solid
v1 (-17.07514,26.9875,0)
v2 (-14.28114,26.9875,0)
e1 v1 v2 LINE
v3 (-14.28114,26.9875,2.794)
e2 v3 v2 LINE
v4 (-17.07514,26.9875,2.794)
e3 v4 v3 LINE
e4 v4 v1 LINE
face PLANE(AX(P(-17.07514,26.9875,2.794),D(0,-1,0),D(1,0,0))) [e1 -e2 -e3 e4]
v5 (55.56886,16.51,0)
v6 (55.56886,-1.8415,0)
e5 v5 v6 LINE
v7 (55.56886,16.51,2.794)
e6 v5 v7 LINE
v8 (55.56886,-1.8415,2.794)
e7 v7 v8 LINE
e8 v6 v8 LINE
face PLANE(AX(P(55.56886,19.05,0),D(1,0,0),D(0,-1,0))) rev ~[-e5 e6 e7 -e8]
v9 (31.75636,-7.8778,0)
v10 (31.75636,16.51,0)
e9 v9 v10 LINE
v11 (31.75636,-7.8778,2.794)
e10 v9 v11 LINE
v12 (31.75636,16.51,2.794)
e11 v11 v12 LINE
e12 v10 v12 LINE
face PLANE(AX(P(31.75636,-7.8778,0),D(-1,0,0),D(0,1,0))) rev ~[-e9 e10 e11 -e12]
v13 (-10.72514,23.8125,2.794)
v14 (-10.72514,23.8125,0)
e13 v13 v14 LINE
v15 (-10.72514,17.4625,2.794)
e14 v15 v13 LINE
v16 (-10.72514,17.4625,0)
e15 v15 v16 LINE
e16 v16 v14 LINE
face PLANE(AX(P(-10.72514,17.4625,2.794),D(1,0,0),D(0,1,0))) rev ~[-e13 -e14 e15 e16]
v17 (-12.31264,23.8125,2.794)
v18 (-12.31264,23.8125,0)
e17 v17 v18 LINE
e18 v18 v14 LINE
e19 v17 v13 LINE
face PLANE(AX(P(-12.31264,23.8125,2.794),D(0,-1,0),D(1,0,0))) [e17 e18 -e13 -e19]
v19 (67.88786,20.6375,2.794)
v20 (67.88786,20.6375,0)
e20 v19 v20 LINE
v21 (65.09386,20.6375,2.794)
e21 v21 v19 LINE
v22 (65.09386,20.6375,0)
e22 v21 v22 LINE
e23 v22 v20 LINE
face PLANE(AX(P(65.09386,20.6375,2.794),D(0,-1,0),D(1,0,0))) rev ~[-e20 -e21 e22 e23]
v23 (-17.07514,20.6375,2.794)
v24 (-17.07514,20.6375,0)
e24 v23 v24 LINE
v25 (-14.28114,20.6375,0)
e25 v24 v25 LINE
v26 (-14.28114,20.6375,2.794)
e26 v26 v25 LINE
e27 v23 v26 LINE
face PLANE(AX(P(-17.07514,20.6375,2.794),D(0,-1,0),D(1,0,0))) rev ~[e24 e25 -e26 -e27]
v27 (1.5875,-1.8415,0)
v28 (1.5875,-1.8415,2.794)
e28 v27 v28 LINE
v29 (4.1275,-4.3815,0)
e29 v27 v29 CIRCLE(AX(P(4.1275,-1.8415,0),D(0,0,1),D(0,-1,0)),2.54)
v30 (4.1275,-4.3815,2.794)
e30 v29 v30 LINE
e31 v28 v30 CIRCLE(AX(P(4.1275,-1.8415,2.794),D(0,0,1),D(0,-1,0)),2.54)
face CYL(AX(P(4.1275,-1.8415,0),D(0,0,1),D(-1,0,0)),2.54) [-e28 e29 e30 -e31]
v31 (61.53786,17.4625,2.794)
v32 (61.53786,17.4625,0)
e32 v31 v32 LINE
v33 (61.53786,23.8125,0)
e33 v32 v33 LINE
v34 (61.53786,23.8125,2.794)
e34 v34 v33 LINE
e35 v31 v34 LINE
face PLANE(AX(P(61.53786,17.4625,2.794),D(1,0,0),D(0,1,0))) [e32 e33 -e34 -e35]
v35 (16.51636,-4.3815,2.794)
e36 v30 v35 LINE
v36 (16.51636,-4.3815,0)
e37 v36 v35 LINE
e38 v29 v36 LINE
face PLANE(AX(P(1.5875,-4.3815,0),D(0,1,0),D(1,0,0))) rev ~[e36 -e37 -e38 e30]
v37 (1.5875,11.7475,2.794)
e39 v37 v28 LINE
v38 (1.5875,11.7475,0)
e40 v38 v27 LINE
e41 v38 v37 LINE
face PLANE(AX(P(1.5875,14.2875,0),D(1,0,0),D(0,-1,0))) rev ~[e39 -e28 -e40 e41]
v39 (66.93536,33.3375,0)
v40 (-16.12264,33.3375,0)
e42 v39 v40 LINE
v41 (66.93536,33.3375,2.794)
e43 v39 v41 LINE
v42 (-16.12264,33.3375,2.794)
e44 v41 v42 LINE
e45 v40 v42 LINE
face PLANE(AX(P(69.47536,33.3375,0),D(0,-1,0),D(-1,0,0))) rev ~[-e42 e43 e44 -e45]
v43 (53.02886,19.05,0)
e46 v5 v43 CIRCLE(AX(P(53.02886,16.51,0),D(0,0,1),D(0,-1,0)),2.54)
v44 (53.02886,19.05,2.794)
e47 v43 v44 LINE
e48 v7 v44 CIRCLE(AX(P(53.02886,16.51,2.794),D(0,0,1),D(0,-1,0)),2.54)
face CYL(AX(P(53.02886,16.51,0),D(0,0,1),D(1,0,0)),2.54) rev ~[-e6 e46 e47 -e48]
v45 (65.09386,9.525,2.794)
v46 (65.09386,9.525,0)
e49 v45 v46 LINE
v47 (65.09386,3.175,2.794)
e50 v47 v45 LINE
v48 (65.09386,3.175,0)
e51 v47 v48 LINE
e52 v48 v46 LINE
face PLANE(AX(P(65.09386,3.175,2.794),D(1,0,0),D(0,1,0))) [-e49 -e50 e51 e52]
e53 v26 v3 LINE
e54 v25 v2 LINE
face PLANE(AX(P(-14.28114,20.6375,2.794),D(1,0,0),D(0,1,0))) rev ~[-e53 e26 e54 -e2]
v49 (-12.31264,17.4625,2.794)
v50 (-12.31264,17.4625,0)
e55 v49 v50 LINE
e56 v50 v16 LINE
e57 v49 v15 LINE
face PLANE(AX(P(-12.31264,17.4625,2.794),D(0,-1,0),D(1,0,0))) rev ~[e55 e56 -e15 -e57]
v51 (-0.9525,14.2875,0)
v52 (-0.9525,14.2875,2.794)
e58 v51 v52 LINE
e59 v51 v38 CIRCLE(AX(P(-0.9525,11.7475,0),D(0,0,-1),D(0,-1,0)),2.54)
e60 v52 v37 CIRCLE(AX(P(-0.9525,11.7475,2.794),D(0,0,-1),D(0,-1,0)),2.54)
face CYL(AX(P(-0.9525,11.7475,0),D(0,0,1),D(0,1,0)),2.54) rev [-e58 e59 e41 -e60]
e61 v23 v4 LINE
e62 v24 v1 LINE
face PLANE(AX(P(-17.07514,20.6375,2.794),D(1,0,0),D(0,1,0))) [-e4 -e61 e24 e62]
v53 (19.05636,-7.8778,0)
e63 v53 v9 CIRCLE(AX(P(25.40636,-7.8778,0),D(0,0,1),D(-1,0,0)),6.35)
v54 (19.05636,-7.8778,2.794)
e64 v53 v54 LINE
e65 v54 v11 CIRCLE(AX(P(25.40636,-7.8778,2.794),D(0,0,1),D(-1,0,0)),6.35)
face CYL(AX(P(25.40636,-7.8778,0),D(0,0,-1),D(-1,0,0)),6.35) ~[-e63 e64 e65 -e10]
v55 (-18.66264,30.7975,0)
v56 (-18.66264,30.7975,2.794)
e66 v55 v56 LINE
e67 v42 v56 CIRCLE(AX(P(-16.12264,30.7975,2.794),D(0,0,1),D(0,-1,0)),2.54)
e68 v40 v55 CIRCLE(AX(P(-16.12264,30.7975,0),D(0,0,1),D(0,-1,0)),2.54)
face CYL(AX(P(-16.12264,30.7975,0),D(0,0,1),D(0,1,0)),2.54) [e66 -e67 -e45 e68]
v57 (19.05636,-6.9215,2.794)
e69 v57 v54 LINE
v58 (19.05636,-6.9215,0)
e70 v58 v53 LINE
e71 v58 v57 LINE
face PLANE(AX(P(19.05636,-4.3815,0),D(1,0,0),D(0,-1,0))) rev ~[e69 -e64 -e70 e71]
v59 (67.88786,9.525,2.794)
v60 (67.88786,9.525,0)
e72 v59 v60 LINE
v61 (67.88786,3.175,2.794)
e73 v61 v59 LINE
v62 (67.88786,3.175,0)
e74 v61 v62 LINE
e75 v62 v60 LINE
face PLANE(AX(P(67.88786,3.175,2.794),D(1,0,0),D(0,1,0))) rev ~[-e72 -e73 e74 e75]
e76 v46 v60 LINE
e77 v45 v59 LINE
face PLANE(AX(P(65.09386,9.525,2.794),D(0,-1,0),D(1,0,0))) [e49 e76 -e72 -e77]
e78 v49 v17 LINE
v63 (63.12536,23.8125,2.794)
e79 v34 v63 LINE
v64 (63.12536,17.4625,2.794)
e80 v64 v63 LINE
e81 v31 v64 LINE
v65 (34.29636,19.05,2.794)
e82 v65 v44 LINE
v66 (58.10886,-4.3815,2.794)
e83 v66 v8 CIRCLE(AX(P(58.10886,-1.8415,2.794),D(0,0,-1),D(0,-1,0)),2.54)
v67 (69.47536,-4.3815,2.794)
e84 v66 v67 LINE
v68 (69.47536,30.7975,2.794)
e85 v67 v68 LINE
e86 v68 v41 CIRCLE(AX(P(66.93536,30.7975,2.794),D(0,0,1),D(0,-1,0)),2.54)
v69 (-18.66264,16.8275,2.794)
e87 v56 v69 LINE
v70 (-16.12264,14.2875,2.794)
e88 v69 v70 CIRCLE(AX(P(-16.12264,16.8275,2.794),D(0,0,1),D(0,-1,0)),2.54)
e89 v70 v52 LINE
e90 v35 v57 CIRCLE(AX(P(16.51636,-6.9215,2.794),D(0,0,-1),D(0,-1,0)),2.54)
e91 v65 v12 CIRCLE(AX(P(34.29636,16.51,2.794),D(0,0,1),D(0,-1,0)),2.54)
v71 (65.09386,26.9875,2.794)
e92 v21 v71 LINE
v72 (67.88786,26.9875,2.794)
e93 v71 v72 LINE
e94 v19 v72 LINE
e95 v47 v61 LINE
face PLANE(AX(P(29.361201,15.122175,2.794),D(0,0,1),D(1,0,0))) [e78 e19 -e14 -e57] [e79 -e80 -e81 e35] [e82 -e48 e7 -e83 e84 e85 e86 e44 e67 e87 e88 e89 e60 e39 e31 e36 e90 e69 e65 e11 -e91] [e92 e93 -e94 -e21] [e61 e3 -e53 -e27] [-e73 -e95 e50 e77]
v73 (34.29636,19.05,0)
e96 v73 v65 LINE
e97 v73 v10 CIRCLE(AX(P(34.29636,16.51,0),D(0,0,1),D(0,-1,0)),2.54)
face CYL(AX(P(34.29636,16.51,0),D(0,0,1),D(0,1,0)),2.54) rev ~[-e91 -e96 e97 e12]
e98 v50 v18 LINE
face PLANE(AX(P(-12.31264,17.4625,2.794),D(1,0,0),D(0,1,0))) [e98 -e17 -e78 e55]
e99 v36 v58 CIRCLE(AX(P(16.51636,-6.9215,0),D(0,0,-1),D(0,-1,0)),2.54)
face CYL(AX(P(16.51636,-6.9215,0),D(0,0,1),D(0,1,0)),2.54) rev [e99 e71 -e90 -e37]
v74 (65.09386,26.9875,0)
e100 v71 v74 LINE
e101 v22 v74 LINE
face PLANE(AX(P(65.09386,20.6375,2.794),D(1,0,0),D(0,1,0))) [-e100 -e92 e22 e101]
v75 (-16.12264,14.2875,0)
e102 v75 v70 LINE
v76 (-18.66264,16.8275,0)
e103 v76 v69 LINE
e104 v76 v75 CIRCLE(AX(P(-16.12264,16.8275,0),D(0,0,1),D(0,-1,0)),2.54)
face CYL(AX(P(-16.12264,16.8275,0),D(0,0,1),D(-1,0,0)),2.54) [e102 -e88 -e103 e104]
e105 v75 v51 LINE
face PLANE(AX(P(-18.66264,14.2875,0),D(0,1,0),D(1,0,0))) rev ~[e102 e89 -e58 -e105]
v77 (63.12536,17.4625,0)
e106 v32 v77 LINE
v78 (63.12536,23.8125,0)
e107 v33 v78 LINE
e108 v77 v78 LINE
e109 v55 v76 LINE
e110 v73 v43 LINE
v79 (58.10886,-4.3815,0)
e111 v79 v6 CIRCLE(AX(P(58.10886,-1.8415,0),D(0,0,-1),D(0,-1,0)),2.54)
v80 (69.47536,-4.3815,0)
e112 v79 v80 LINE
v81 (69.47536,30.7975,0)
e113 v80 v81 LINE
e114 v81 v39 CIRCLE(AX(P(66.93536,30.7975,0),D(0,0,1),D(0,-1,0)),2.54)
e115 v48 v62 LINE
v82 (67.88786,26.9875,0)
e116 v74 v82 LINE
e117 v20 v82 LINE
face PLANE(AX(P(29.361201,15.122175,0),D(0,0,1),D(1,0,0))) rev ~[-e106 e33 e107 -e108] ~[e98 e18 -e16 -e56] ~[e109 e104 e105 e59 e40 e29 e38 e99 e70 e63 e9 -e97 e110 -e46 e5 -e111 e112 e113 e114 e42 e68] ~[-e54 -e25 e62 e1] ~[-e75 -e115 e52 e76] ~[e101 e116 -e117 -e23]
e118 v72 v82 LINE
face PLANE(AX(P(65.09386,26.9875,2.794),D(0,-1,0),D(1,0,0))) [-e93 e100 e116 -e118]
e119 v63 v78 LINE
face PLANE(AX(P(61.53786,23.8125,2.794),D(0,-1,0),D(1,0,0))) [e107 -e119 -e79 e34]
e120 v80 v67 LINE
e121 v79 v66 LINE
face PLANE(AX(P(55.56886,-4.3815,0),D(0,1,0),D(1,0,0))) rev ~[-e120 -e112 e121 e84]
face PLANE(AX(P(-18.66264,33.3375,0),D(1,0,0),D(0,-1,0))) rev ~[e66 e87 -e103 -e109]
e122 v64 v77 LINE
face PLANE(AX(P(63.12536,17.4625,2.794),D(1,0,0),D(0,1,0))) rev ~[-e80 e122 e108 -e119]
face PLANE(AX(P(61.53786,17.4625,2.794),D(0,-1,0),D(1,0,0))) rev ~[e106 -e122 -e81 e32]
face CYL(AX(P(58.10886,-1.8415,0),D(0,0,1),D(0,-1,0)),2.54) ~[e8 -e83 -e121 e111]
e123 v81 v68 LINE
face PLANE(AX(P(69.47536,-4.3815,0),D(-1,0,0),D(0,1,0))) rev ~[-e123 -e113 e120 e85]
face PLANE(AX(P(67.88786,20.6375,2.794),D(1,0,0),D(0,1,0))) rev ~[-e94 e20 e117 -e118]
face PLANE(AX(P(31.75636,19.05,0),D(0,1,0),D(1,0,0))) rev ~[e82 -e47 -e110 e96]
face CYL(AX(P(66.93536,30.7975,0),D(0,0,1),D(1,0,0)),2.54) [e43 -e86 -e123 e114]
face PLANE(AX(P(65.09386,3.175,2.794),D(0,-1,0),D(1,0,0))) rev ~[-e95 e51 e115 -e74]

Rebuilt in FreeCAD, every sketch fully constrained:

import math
import FreeCAD as App
import Part
import Sketcher
Q = App.Units.Quantity


def edges_at(feature, points):
    """Names of the edges that pass closest to the given points."""
    edges = feature.Shape.Edges
    near = lambda p: min(range(len(edges)), key=lambda i: edges[i].distToShape(Part.Vertex(*p))[0])
    return sorted({f"Edge{near(p) + 1}" for p in points})

doc = App.newDocument("Part")
body = doc.addObject("PartDesign::Body", "Body")

sketch1 = body.newObject("Sketcher::SketchObject", "Sketch")
sketch1.AttachmentSupport = (doc.getObject("XY_Plane"), [""])
sketch1.MapMode = "FlatFace"
sketch1.addGeometry([
    Part.LineSegment(App.Vector(69.47536, -4.3815, 0), App.Vector(69.47536, 33.3375, 0)),
    Part.LineSegment(App.Vector(69.47536, 33.3375, 0), App.Vector(-18.66264, 33.3375, 0)),
    Part.LineSegment(App.Vector(-18.66264, 33.3375, 0), App.Vector(-18.66264, 14.2875, 0)),
    Part.LineSegment(App.Vector(-18.66264, 14.2875, 0), App.Vector(1.5875, 14.2875, 0)),
    Part.LineSegment(App.Vector(1.5875, 14.2875, 0), App.Vector(1.5875, -4.3815, 0)),
    Part.LineSegment(App.Vector(1.5875, -4.3815, 0), App.Vector(19.05636, -4.3815, 0)),
    Part.LineSegment(App.Vector(19.05636, -4.3815, 0), App.Vector(19.05636, -7.8778, 0)),
    Part.ArcOfCircle(Part.Circle(App.Vector(25.40636, -7.8778, 0), App.Vector(0, 0, 1), 6.35), math.radians(180), math.radians(360)),
    Part.LineSegment(App.Vector(31.75636, -7.8778, 0), App.Vector(31.75636, 19.05, 0)),
    Part.LineSegment(App.Vector(31.75636, 19.05, 0), App.Vector(55.56886, 19.05, 0)),
    Part.LineSegment(App.Vector(55.56886, 19.05, 0), App.Vector(55.56886, -4.3815, 0)),
    Part.LineSegment(App.Vector(55.56886, -4.3815, 0), App.Vector(69.47536, -4.3815, 0)),
], False)
sketch1.addConstraint([
    Sketcher.Constraint("Coincident", 0, 2, 1, 1),
    Sketcher.Constraint("Coincident", 1, 2, 2, 1),
    Sketcher.Constraint("Coincident", 2, 2, 3, 1),
    Sketcher.Constraint("Coincident", 3, 2, 4, 1),
    Sketcher.Constraint("Coincident", 4, 2, 5, 1),
    Sketcher.Constraint("Coincident", 5, 2, 6, 1),
    Sketcher.Constraint("Tangent", 6, 2, 7, 1),
    Sketcher.Constraint("Tangent", 7, 2, 8, 1),
    Sketcher.Constraint("Coincident", 8, 2, 9, 1),
    Sketcher.Constraint("Coincident", 9, 2, 10, 1),
    Sketcher.Constraint("Coincident", 10, 2, 11, 1),
    Sketcher.Constraint("Coincident", 11, 2, 0, 1),
    Sketcher.Constraint("Vertical", 0),
    Sketcher.Constraint("Horizontal", 1),
    Sketcher.Constraint("Vertical", 2),
    Sketcher.Constraint("Horizontal", 3),
    Sketcher.Constraint("Vertical", 4),
    Sketcher.Constraint("Horizontal", 5),
    Sketcher.Constraint("Vertical", 6),
    Sketcher.Constraint("Vertical", 8),
    Sketcher.Constraint("Horizontal", 9),
    Sketcher.Constraint("Vertical", 10),
    Sketcher.Constraint("Horizontal", 11),
    Sketcher.Constraint("Horizontal", 5, 2, 10, 2),
    Sketcher.Constraint("Radius", 7, Q("0.25 in")),
    Sketcher.Constraint("DistanceX", 1, 2, 1, 1, Q("3.47 in")),
    Sketcher.Constraint("DistanceY", 2, 2, 2, 1, Q("0.75 in")),
    Sketcher.Constraint("DistanceX", 9, 1, 9, 2, Q("0.9375 in")),
    Sketcher.Constraint("DistanceY", 0, 1, 0, 2, Q("1.485 in")),
    Sketcher.Constraint("DistanceY", -1, 1, 8, 2, Q("0.75 in")),
    Sketcher.Constraint("DistanceX", 11, 1, 11, 2, Q("0.5475 in")),
    Sketcher.Constraint("DistanceY", 10, 2, 10, 1, Q("0.9225 in")),
    Sketcher.Constraint("DistanceX", -1, 1, 3, 2, Q("0.0625 in")),
    Sketcher.Constraint("DistanceY", 6, 2, 6, 1, Q("3.4963 mm")),
    Sketcher.Constraint("DistanceX", 3, 1, 3, 2, Q("20.25014 mm")),
])
pad1 = body.newObject("PartDesign::Pad", "Pad")
pad1.Profile = sketch1
pad1.Length = Q("0.11 in")

sketch2 = body.newObject("Sketcher::SketchObject", "Sketch001")
sketch2.AttachmentSupport = (doc.getObject("XY_Plane"), [""])
sketch2.MapMode = "FlatFace"
sketch2.AttachmentOffset = App.Placement(App.Vector(0, 0, 0.11 * 25.4), App.Rotation())
sketch2.addGeometry([
    Part.LineSegment(App.Vector(-17.07514, 26.9875, 0), App.Vector(-17.07514, 20.6375, 0)),
    Part.LineSegment(App.Vector(-17.07514, 20.6375, 0), App.Vector(-14.28114, 20.6375, 0)),
    Part.LineSegment(App.Vector(-14.28114, 20.6375, 0), App.Vector(-14.28114, 26.9875, 0)),
    Part.LineSegment(App.Vector(-14.28114, 26.9875, 0), App.Vector(-17.07514, 26.9875, 0)),
    Part.LineSegment(App.Vector(65.09386, 26.9875, 0), App.Vector(65.09386, 20.6375, 0)),
    Part.LineSegment(App.Vector(65.09386, 20.6375, 0), App.Vector(67.88786, 20.6375, 0)),
    Part.LineSegment(App.Vector(67.88786, 20.6375, 0), App.Vector(67.88786, 26.9875, 0)),
    Part.LineSegment(App.Vector(67.88786, 26.9875, 0), App.Vector(65.09386, 26.9875, 0)),
    Part.LineSegment(App.Vector(65.09386, 9.525, 0), App.Vector(65.09386, 3.175, 0)),
    Part.LineSegment(App.Vector(65.09386, 3.175, 0), App.Vector(67.88786, 3.175, 0)),
    Part.LineSegment(App.Vector(67.88786, 3.175, 0), App.Vector(67.88786, 9.525, 0)),
    Part.LineSegment(App.Vector(67.88786, 9.525, 0), App.Vector(65.09386, 9.525, 0)),
    Part.LineSegment(App.Vector(-12.31264, 23.8125, 0), App.Vector(-12.31264, 17.4625, 0)),
    Part.LineSegment(App.Vector(-12.31264, 17.4625, 0), App.Vector(-10.72514, 17.4625, 0)),
    Part.LineSegment(App.Vector(-10.72514, 17.4625, 0), App.Vector(-10.72514, 23.8125, 0)),
    Part.LineSegment(App.Vector(-10.72514, 23.8125, 0), App.Vector(-12.31264, 23.8125, 0)),
    Part.LineSegment(App.Vector(61.53786, 23.8125, 0), App.Vector(61.53786, 17.4625, 0)),
    Part.LineSegment(App.Vector(61.53786, 17.4625, 0), App.Vector(63.12536, 17.4625, 0)),
    Part.LineSegment(App.Vector(63.12536, 17.4625, 0), App.Vector(63.12536, 23.8125, 0)),
    Part.LineSegment(App.Vector(63.12536, 23.8125, 0), App.Vector(61.53786, 23.8125, 0)),
], False)
sketch2.addConstraint([
    Sketcher.Constraint("Coincident", 0, 2, 1, 1),
    Sketcher.Constraint("Coincident", 1, 2, 2, 1),
    Sketcher.Constraint("Coincident", 2, 2, 3, 1),
    Sketcher.Constraint("Coincident", 3, 2, 0, 1),
    Sketcher.Constraint("Coincident", 4, 2, 5, 1),
    Sketcher.Constraint("Coincident", 5, 2, 6, 1),
    Sketcher.Constraint("Coincident", 6, 2, 7, 1),
    Sketcher.Constraint("Coincident", 7, 2, 4, 1),
    Sketcher.Constraint("Coincident", 8, 2, 9, 1),
    Sketcher.Constraint("Coincident", 9, 2, 10, 1),
    Sketcher.Constraint("Coincident", 10, 2, 11, 1),
    Sketcher.Constraint("Coincident", 11, 2, 8, 1),
    Sketcher.Constraint("Coincident", 12, 2, 13, 1),
    Sketcher.Constraint("Coincident", 13, 2, 14, 1),
    Sketcher.Constraint("Coincident", 14, 2, 15, 1),
    Sketcher.Constraint("Coincident", 15, 2, 12, 1),
    Sketcher.Constraint("Coincident", 16, 2, 17, 1),
    Sketcher.Constraint("Coincident", 17, 2, 18, 1),
    Sketcher.Constraint("Coincident", 18, 2, 19, 1),
    Sketcher.Constraint("Coincident", 19, 2, 16, 1),
    Sketcher.Constraint("Vertical", 0),
    Sketcher.Constraint("Horizontal", 1),
    Sketcher.Constraint("Vertical", 2),
    Sketcher.Constraint("Horizontal", 3),
    Sketcher.Constraint("Vertical", 4),
    Sketcher.Constraint("Horizontal", 5),
    Sketcher.Constraint("Vertical", 6),
    Sketcher.Constraint("Horizontal", 7),
    Sketcher.Constraint("Vertical", 8),
    Sketcher.Constraint("Horizontal", 9),
    Sketcher.Constraint("Vertical", 10),
    Sketcher.Constraint("Horizontal", 11),
    Sketcher.Constraint("Vertical", 12),
    Sketcher.Constraint("Horizontal", 13),
    Sketcher.Constraint("Vertical", 14),
    Sketcher.Constraint("Horizontal", 15),
    Sketcher.Constraint("Vertical", 16),
    Sketcher.Constraint("Horizontal", 17),
    Sketcher.Constraint("Vertical", 18),
    Sketcher.Constraint("Horizontal", 19),
    Sketcher.Constraint("Horizontal", 1, 2, 4, 2),
    Sketcher.Constraint("Horizontal", 3, 2, 6, 2),
    Sketcher.Constraint("Horizontal", 13, 2, 16, 2),
    Sketcher.Constraint("Horizontal", 15, 2, 18, 2),
    Sketcher.Constraint("Vertical", 7, 2, 8, 2),
    Sketcher.Constraint("Vertical", 6, 2, 9, 2),
    Sketcher.Constraint("Equal", 3, 5),
    Sketcher.Constraint("Equal", 15, 17),
    Sketcher.Constraint("Equal", 6, 8),
    Sketcher.Constraint("Equal", 10, 12),
    Sketcher.Constraint("DistanceX", 1, 1, 1, 2, Q("0.11 in")),
    Sketcher.Constraint("DistanceY", 0, 2, 0, 1, Q("0.25 in")),
    Sketcher.Constraint("DistanceX", 13, 1, 13, 2, Q("0.0625 in")),
    Sketcher.Constraint("DistanceX", 1, 2, 13, 2, Q("0.14 in")),
    Sketcher.Constraint("DistanceX", 16, 2, 4, 2, Q("0.14 in")),
    Sketcher.Constraint("DistanceY", -1, 1, 0, 2, Q("0.8125 in")),
    Sketcher.Constraint("DistanceY", -1, 1, 8, 2, Q("0.125 in")),
    Sketcher.Constraint("DistanceY", -1, 1, 12, 2, Q("0.6875 in")),
    Sketcher.Constraint("DistanceX", 1, 2, 4, 2, Q("3.125 in")),
    Sketcher.Constraint("DistanceX", 0, 2, -1, 1, Q("17.07514 mm")),
])
pocket1 = body.newObject("PartDesign::Pocket", "Pocket")
pocket1.Profile = sketch2
pocket1.Type = "ThroughAll"
doc.recompute()

fillet = body.newObject("PartDesign::Fillet", "Fillet")
fillet.Base = (pocket1, edges_at(pocket1, [
    (55.569, -4.381, 1.397),
    (55.569, 19.05, 1.397),
    (31.756, 19.05, 1.397),
    (19.056, -4.381, 1.397),
    (1.587, -4.381, 1.397),
    (1.587, 14.287, 1.397),
    (-18.663, 14.287, 1.397),
    (-18.663, 33.337, 1.397),
    (69.475, 33.337, 1.397),
]))
fillet.Radius = Q("0.1 in")

doc.recompute()
